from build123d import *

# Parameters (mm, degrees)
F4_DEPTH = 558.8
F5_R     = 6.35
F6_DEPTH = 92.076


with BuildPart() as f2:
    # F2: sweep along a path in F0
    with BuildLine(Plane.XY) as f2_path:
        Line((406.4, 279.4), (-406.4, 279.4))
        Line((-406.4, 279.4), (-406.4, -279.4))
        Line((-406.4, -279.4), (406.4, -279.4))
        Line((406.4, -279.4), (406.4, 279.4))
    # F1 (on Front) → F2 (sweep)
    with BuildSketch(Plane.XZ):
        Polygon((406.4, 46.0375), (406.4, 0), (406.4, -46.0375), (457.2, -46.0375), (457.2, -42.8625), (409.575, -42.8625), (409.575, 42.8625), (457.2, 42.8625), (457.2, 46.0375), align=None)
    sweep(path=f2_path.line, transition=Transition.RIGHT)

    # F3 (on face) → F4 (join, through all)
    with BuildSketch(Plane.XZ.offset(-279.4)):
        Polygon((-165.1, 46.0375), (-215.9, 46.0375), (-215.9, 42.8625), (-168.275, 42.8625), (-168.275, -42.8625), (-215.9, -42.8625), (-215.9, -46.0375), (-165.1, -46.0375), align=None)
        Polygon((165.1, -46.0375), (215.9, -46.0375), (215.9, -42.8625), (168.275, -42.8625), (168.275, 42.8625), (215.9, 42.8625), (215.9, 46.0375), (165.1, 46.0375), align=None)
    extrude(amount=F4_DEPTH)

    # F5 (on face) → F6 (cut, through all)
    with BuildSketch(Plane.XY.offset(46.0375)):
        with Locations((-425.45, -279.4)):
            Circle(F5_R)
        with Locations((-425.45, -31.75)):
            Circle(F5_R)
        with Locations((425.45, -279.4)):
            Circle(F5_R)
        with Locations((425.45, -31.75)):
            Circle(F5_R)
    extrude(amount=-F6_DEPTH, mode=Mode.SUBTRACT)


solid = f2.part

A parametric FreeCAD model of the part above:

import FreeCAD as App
import Part
import Sketcher
from FreeCAD import Vector
Q = App.Units.Quantity


def add_polygon(sketch, points):
    """Adds a closed chain of lines whose ends are joined by coincident constraints."""
    first, n = sketch.GeometryCount, len(points)
    for a, b in zip(points, points[1:] + points[:1]):
        sketch.addGeometry(Part.LineSegment(App.Vector(*a, 0), App.Vector(*b, 0)), False)
    for i in range(n):
        sketch.addConstraint(Sketcher.Constraint("Coincident", first + i, 2, first + (i + 1) % n, 1))

doc = App.newDocument("Part")
body = doc.addObject("PartDesign::Body", "Body")

# Sketch on XZ plane
sketch1 = body.newObject("Sketcher::SketchObject", "Sketch")
sketch1.AttachmentSupport = (doc.getObject("XZ_Plane"), [""])
sketch1.MapMode = "FlatFace"
add_polygon(sketch1, [(406.4, 46), (406.4, -46), (457.2, -46), (457.2, -42.9), (409.6, -42.9), (409.6, 42.9), (457.2, 42.9), (457.2, 46)])  # lines 0-7
sketch1.addConstraint([
    Sketcher.Constraint("Vertical", 0),
    Sketcher.Constraint("Horizontal", 1),
    Sketcher.Constraint("Vertical", 2),
    Sketcher.Constraint("Horizontal", 3),
    Sketcher.Constraint("Vertical", 4),
    Sketcher.Constraint("Horizontal", 5),
    Sketcher.Constraint("Vertical", 6),
    Sketcher.Constraint("Horizontal", 7),
    Sketcher.Constraint("Symmetric", 2, 2, 5, 2, -1),
    Sketcher.Constraint("Equal", 2, 6),
    Sketcher.Constraint("DistanceX", 1, 1, 1, 2, Q("2 in")),
    Sketcher.Constraint("DistanceX", -1, 1, 0, 2, Q("16 in")),
    Sketcher.Constraint("DistanceY", 0, 2, 4, 2, Q("3.5 in")),
    Sketcher.Constraint("DistanceX", 3, 2, 3, 1, Q("1.875 in")),
    Sketcher.Constraint("DistanceY", 0, 2, 0, 1, Q("3.625 in")),
])

# Sketch on XY plane
sketch2 = body.newObject("Sketcher::SketchObject", "Sketch001")
sketch2.AttachmentSupport = (doc.getObject("XY_Plane"), [""])
sketch2.MapMode = "FlatFace"
add_polygon(sketch2, [(406, 279), (-406, 279), (-406, -279), (406, -279)])  # lines 0-3
sketch2.addConstraint([
    Sketcher.Constraint("Horizontal", 0),
    Sketcher.Constraint("Vertical", 1),
    Sketcher.Constraint("Horizontal", 2),
    Sketcher.Constraint("Vertical", 3),
    Sketcher.Constraint("Symmetric", 0, 2, 2, 2, -1, 1),
    Sketcher.Constraint("DistanceX", 0, 2, 0, 1, Q("32 in")),
    Sketcher.Constraint("DistanceY", 1, 2, 1, 1, Q("22 in")),
])
doc.recompute()

additivepipe = body.newObject("PartDesign::AdditivePipe", "AdditivePipe")
additivepipe.Profile = sketch1
additivepipe.Spine = (sketch2, ["Edge1", "Edge2", "Edge3", "Edge4"])
additivepipe.Transition = "Right corner"

# Sketch on XZ plane
sketch3 = body.newObject("Sketcher::SketchObject", "Sketch002")
sketch3.AttachmentSupport = (doc.getObject("XZ_Plane"), [""])
sketch3.MapMode = "FlatFace"
sketch3.AttachmentOffset = App.Placement(Vector(0, 0, -11 * 25.4), App.Rotation())
add_polygon(sketch3, [(-165.1, 46), (-215.9, 46), (-215.9, 42.9), (-168.3, 42.9), (-168.3, -42.9), (-215.9, -42.9), (-215.9, -46), (-165.1, -46)])  # lines 0-7
add_polygon(sketch3, [(165.1, -46), (215.9, -46), (215.9, -42.9), (168.3, -42.9), (168.3, 42.9), (215.9, 42.9), (215.9, 46), (165.1, 46)])  # lines 8-15
sketch3.addConstraint([
    Sketcher.Constraint("Horizontal", 0),
    Sketcher.Constraint("Vertical", 1),
    Sketcher.Constraint("Horizontal", 2),
    Sketcher.Constraint("Vertical", 3),
    Sketcher.Constraint("Horizontal", 4),
    Sketcher.Constraint("Vertical", 5),
    Sketcher.Constraint("Horizontal", 6),
    Sketcher.Constraint("Vertical", 7),
    Sketcher.Constraint("Horizontal", 8),
    Sketcher.Constraint("Vertical", 9),
    Sketcher.Constraint("Horizontal", 10),
    Sketcher.Constraint("Vertical", 11),
    Sketcher.Constraint("Horizontal", 12),
    Sketcher.Constraint("Vertical", 13),
    Sketcher.Constraint("Horizontal", 14),
    Sketcher.Constraint("Vertical", 15),
    Sketcher.Constraint("Symmetric", 0, 2, 8, 2, -1, 1),
    Sketcher.Constraint("Symmetric", 2, 2, 10, 2, -1, 1),
    Sketcher.Constraint("Symmetric", 4, 2, 12, 2, -1, 1),
    Sketcher.Constraint("Symmetric", 6, 2, 14, 2, -1, 1),
    Sketcher.Constraint("Symmetric", 5, 2, 8, 2, -2),
    Sketcher.Constraint("Horizontal", 4, 2, 9, 2),
    Sketcher.Constraint("DistanceX", 0, 2, 0, 1, Q("2 in")),
    Sketcher.Constraint("DistanceX", 6, 2, 8, 2, Q("15 in")),
    Sketcher.Constraint("DistanceY", 3, 2, 0, 2, Q("3.5 in")),
    Sketcher.Constraint("DistanceX", 2, 1, 2, 2, Q("1.875 in")),
    Sketcher.Constraint("DistanceY", 1, 2, 1, 1, Q("0.125 in")),
])
pad1 = body.newObject("PartDesign::Pad", "Pad")
pad1.Profile = sketch3
pad1.Type = "UpToLast"

# Sketch on XY plane
sketch4 = body.newObject("Sketcher::SketchObject", "Sketch003")
sketch4.AttachmentSupport = (doc.getObject("XY_Plane"), [""])
sketch4.MapMode = "FlatFace"
sketch4.AttachmentOffset = App.Placement(Vector(0, 0, 1.8125 * 25.4), App.Rotation())
sketch4.addGeometry([
    Part.Circle(Vector(-425, -279, 0), Vector(0, 0, 1), 6),
    Part.Circle(Vector(-425, -32, 0), Vector(0, 0, 1), 6),
    Part.Circle(Vector(425, -279, 0), Vector(0, 0, 1), 6),
    Part.Circle(Vector(425, -32, 0), Vector(0, 0, 1), 6),
], False)
sketch4.addConstraint([
    Sketcher.Constraint("Equal", 0, 1),
    Sketcher.Constraint("Equal", 1, 2),
    Sketcher.Constraint("Equal", 2, 3),
    Sketcher.Constraint("Symmetric", 0, 3, 2, 3, -2),
    Sketcher.Constraint("Symmetric", 1, 3, 3, 3, -2),
    Sketcher.Constraint("Vertical", 0, 3, 1, 3),
    Sketcher.Constraint("Diameter", 0, Q("0.5 in")),
    Sketcher.Constraint("DistanceY", 0, 3, -1, 1, Q("11 in")),
    Sketcher.Constraint("DistanceX", 0, 3, 2, 3, Q("33.5 in")),
    Sketcher.Constraint("DistanceY", 1, 3, -1, 1, Q("1.25 in")),
])
pocket1 = body.newObject("PartDesign::Pocket", "Pocket")
pocket1.Profile = sketch4
pocket1.Type = "ThroughAll"

doc.recompute()
